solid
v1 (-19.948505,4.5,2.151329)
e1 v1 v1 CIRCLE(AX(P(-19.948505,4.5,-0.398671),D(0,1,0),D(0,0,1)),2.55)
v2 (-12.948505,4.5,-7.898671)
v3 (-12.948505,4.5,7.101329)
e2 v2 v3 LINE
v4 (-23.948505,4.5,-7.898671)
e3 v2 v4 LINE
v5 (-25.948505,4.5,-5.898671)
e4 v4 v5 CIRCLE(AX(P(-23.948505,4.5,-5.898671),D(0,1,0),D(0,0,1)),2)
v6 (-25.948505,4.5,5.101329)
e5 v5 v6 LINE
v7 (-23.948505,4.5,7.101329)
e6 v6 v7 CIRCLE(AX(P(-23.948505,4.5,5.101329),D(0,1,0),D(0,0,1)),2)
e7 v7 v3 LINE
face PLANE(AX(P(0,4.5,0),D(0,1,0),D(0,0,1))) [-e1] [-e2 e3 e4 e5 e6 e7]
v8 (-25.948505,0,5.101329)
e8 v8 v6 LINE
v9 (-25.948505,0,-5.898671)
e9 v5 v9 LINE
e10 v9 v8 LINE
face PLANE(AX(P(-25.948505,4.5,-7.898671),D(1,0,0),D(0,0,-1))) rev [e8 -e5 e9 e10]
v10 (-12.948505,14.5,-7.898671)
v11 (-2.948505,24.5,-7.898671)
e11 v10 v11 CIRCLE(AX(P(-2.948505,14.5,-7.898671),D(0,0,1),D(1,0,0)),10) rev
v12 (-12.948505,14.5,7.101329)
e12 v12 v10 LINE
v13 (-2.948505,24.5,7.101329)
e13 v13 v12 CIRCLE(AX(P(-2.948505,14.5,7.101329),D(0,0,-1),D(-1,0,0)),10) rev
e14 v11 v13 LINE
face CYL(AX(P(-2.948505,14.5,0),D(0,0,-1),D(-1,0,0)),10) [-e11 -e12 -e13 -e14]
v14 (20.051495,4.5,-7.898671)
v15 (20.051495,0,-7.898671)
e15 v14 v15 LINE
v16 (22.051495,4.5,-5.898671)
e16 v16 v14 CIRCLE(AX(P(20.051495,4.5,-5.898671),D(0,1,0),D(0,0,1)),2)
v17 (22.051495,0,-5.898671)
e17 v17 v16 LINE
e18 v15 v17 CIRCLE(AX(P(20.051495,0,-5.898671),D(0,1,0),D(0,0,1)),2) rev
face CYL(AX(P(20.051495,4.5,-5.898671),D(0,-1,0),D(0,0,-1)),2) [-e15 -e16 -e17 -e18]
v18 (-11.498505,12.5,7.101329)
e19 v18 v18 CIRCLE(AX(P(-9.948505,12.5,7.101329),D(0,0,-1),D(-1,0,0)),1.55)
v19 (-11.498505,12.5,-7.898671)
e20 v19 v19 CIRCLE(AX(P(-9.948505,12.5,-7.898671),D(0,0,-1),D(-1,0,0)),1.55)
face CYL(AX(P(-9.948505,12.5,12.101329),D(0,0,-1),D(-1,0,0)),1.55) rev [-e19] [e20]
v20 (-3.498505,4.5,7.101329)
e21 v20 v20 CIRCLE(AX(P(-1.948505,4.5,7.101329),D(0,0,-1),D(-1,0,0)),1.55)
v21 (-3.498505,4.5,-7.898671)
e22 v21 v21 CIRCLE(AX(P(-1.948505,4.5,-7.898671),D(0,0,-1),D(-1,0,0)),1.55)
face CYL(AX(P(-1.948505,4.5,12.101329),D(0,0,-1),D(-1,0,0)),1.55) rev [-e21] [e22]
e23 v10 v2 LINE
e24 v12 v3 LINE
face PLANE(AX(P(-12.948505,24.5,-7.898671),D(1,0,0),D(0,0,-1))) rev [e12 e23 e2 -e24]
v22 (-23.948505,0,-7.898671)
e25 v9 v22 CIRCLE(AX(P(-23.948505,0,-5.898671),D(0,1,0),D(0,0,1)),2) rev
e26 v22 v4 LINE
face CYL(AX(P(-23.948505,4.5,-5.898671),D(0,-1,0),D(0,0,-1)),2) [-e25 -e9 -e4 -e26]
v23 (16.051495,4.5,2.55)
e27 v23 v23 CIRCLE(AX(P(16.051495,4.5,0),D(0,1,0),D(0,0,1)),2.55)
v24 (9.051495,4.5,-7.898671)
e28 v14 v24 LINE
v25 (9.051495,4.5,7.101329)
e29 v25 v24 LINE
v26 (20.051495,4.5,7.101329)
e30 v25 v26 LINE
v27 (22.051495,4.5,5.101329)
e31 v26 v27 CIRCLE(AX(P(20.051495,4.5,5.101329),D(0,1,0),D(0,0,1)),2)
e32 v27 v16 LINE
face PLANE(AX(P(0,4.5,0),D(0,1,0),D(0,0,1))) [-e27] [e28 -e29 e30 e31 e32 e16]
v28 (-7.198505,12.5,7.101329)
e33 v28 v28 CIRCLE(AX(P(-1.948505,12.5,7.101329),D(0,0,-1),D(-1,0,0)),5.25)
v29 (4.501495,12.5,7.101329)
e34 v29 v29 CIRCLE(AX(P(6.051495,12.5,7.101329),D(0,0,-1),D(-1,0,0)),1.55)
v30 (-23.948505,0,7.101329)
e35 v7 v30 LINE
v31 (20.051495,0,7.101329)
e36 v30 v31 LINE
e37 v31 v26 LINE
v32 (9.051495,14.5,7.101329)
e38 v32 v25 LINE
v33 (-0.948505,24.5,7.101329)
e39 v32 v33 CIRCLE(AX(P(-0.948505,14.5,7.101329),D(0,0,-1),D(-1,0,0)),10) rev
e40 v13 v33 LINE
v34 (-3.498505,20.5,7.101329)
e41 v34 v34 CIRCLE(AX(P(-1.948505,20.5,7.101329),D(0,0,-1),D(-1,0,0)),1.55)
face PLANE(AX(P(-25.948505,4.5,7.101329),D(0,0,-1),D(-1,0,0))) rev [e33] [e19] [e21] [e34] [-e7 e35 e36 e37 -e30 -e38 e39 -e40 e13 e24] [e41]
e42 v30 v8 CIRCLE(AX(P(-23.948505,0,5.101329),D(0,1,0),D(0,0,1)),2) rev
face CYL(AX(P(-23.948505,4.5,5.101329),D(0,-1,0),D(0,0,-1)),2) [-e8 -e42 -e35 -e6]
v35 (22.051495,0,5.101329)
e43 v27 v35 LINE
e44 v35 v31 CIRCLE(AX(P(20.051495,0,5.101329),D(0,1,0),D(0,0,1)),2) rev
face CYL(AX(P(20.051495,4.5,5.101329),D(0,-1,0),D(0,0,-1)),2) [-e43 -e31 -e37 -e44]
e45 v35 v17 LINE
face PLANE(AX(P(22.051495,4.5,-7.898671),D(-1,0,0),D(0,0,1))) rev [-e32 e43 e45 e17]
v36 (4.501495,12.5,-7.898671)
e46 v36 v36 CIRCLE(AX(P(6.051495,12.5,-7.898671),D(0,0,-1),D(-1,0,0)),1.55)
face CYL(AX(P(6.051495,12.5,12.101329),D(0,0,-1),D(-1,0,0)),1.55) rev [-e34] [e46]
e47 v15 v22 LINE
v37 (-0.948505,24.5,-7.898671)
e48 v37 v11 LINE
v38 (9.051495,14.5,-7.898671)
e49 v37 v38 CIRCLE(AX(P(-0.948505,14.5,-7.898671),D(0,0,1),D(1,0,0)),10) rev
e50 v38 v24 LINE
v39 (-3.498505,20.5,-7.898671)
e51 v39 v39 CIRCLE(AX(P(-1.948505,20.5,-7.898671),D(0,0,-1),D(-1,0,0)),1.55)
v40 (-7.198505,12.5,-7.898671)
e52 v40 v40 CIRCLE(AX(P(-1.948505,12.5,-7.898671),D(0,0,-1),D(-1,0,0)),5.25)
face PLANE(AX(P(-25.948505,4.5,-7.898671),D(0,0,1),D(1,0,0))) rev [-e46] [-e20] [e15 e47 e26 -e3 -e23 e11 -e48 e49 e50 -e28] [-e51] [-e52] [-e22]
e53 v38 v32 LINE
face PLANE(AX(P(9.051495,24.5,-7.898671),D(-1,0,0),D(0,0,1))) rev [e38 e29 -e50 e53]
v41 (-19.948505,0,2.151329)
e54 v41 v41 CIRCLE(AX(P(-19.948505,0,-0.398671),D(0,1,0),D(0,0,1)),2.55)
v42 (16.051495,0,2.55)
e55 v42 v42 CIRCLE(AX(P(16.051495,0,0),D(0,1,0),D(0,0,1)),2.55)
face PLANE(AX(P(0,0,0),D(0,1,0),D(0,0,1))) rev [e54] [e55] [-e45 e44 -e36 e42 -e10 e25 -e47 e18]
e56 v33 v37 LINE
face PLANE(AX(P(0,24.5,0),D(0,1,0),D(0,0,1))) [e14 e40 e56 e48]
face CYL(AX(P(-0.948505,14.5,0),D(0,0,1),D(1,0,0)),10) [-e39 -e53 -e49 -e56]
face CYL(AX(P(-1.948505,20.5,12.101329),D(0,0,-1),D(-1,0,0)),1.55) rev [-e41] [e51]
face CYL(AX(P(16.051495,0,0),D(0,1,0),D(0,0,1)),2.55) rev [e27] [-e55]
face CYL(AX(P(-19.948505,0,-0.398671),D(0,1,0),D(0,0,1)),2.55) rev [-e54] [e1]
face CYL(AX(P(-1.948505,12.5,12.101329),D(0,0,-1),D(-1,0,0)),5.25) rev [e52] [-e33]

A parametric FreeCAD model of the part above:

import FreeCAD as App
import Part
import Sketcher


def edges_at(feature, points):
    """Names of the edges that pass closest to the given points."""
    edges = feature.Shape.Edges
    near = lambda p: min(range(len(edges)), key=lambda i: edges[i].distToShape(Part.Vertex(*p))[0])
    return sorted({f"Edge{near(p) + 1}" for p in points})


def add_polygon(sketch, points):
    """Adds a closed chain of lines whose ends are joined by coincident constraints."""
    first, n = sketch.GeometryCount, len(points)
    for a, b in zip(points, points[1:] + points[:1]):
        sketch.addGeometry(Part.LineSegment(App.Vector(*a, 0), App.Vector(*b, 0)), False)
    for i in range(n):
        sketch.addConstraint(Sketcher.Constraint("Coincident", first + i, 2, first + (i + 1) % n, 1))

doc = App.newDocument("Part")
body = doc.addObject("PartDesign::Body", "Body")

sketch1 = doc.addObject("Sketcher::SketchObject", "Sketch")
body.addObject(sketch1)
sketch1.AttachmentSupport = (doc.XZ_Plane, [""])
sketch1.MapMode = "FlatFace"
add_polygon(sketch1, [(-26, -8), (-26, 7), (22, 7), (22, -8)])
sketch1.addConstraint(Sketcher.Constraint("Vertical", 0))
sketch1.addConstraint(Sketcher.Constraint("Horizontal", 1))
sketch1.addConstraint(Sketcher.Constraint("Vertical", 2))
sketch1.addConstraint(Sketcher.Constraint("Horizontal", 3))
sketch1.addConstraint(Sketcher.Constraint("DistanceX", 1, 1, 1, 2, 48.0))
sketch1.addConstraint(Sketcher.Constraint("DistanceY", 0, 1, 0, 2, 15.0))
sketch1.addConstraint(Sketcher.Constraint("DistanceY", -1, 1, 0, 2, 7.101329))
sketch1.addConstraint(Sketcher.Constraint("DistanceX", 0, 2, -1, 1, 25.948505))
pad1 = doc.addObject("PartDesign::Pad", "Pad")
body.addObject(pad1)
pad1.Profile = sketch1
pad1.Length = 4.5
pad1.Reversed = True

sketch2 = doc.addObject("Sketcher::SketchObject", "Sketch001")
body.addObject(sketch2)
sketch2.AttachmentSupport = (doc.XZ_Plane, [""])
sketch2.MapMode = "FlatFace"
sketch2.AttachmentOffset = App.Placement(App.Vector(0, 0, -4.5), App.Rotation())
add_polygon(sketch2, [(-13, -8), (-13, 7), (9, 7), (9, -8)])
sketch2.addConstraint(Sketcher.Constraint("Vertical", 0))
sketch2.addConstraint(Sketcher.Constraint("Horizontal", 1))
sketch2.addConstraint(Sketcher.Constraint("Vertical", 2))
sketch2.addConstraint(Sketcher.Constraint("Horizontal", 3))
sketch2.addConstraint(Sketcher.Constraint("DistanceX", 1, 1, 1, 2, 22.0))
sketch2.addConstraint(Sketcher.Constraint("DistanceY", 0, 1, 0, 2, 15.0))
sketch2.addConstraint(Sketcher.Constraint("DistanceY", -1, 1, 0, 2, 7.101329))
sketch2.addConstraint(Sketcher.Constraint("DistanceX", 0, 2, -1, 1, 12.948505))
pad2 = doc.addObject("PartDesign::Pad", "Pad001")
body.addObject(pad2)
pad2.Profile = sketch2
pad2.Length = 20
pad2.Reversed = True
doc.recompute()

fillet = doc.addObject("PartDesign::Fillet", "Fillet")
body.addObject(fillet)
fillet.Base = (pad2, edges_at(pad2, [(-12.949, 24.5, -0.399), (9.051, 24.5, -0.399)]))
fillet.Radius = 10

sketch3 = doc.addObject("Sketcher::SketchObject", "Sketch002")
body.addObject(sketch3)
sketch3.AttachmentSupport = (doc.XZ_Plane, [""])
sketch3.MapMode = "FlatFace"
sketch3.AttachmentOffset = App.Placement(App.Vector(0, 0, -4.5), App.Rotation())
sketch3.addGeometry(Part.Circle(App.Vector(-19.9, -0.4, 0), App.Vector(0, 0, 1), 2.5), False)
sketch3.addGeometry(Part.Circle(App.Vector(16.1, 0, 0), App.Vector(0, 0, 1), 2.5), False)
sketch3.addConstraint(Sketcher.Constraint("Equal", 0, 1))
sketch3.addConstraint(Sketcher.Constraint("PointOnObject", 1, 3, -1))
sketch3.addConstraint(Sketcher.Constraint("Diameter", 0, 5.1))
sketch3.addConstraint(Sketcher.Constraint("DistanceX", 0, 3, 1, 3, 36.0))
sketch3.addConstraint(Sketcher.Constraint("DistanceY", 0, 3, -1, 1, 0.398671))
sketch3.addConstraint(Sketcher.Constraint("DistanceX", 0, 3, -1, 1, 19.948505))
pocket1 = doc.addObject("PartDesign::Pocket", "Pocket")
body.addObject(pocket1)
pocket1.Profile = sketch3
pocket1.Type = "ThroughAll"
pocket1.Reversed = True

sketch4 = doc.addObject("Sketcher::SketchObject", "Sketch003")
body.addObject(sketch4)
sketch4.AttachmentSupport = (doc.XY_Plane, [""])
sketch4.MapMode = "FlatFace"
sketch4.AttachmentOffset = App.Placement(App.Vector(0, 0, -7.898671), App.Rotation())
sketch4.addGeometry(Part.Circle(App.Vector(-1.9, 12.5, 0), App.Vector(0, 0, 1), 5.2), False)
sketch4.addGeometry(Part.Circle(App.Vector(-1.9, 20.5, 0), App.Vector(0, 0, 1), 1.6), False)
sketch4.addGeometry(Part.Circle(App.Vector(-9.9, 12.5, 0), App.Vector(0, 0, 1), 1.6), False)
sketch4.addGeometry(Part.Circle(App.Vector(-1.9, 4.5, 0), App.Vector(0, 0, 1), 1.6), False)
sketch4.addGeometry(Part.Circle(App.Vector(6.1, 12.5, 0), App.Vector(0, 0, 1), 1.6), False)
sketch4.addConstraint(Sketcher.Constraint("Equal", 1, 2))
sketch4.addConstraint(Sketcher.Constraint("Equal", 2, 3))
sketch4.addConstraint(Sketcher.Constraint("Equal", 3, 4))
sketch4.addConstraint(Sketcher.Constraint("Horizontal", 0, 3, 2, 3))
sketch4.addConstraint(Sketcher.Constraint("Horizontal", 2, 3, 4, 3))
sketch4.addConstraint(Sketcher.Constraint("Vertical", 0, 3, 1, 3))
sketch4.addConstraint(Sketcher.Constraint("Vertical", 1, 3, 3, 3))
sketch4.addConstraint(Sketcher.Constraint("Diameter", 0, 10.5))
sketch4.addConstraint(Sketcher.Constraint("Diameter", 1, 3.1))
sketch4.addConstraint(Sketcher.Constraint("DistanceY", 0, 3, 1, 3, 8.0))
sketch4.addConstraint(Sketcher.Constraint("DistanceX", 2, 3, 0, 3, 8.0))
sketch4.addConstraint(Sketcher.Constraint("DistanceY", 3, 3, 0, 3, 8.0))
sketch4.addConstraint(Sketcher.Constraint("DistanceX", 0, 3, 4, 3, 8.0))
sketch4.addConstraint(Sketcher.Constraint("DistanceY", -1, 1, 0, 3, 12.5))
sketch4.addConstraint(Sketcher.Constraint("DistanceX", 0, 3, -1, 1, 1.948505))
pocket2 = doc.addObject("PartDesign::Pocket", "Pocket001")
body.addObject(pocket2)
pocket2.Profile = sketch4
pocket2.Length = 20
pocket2.Reversed = True
doc.recompute()

fillet2 = doc.addObject("PartDesign::Fillet", "Fillet001")
body.addObject(fillet2)
fillet2.Base = (pocket2, edges_at(pocket2, [
    (-25.949, 2.25, -7.899),
    (22.051, 2.25, -7.899),
    (22.051, 2.25, 7.101),
    (-25.949, 2.25, 7.101),
]))
fillet2.Radius = 2

doc.recompute()
